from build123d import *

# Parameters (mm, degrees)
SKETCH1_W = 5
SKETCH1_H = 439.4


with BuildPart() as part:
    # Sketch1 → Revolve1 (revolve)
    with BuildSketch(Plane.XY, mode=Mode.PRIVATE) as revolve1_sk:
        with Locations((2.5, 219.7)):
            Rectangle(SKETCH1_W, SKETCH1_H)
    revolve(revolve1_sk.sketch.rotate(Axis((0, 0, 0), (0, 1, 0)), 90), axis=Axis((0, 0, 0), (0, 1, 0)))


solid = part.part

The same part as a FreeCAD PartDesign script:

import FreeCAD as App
import Part
import Sketcher

V = App.Vector
Q = App.Units.Quantity

doc = App.newDocument("Part")
body = doc.addObject("PartDesign::Body", "Body")

# Sketch on XY plane
sketch1 = doc.addObject("Sketcher::SketchObject", "Sketch")
body.addObject(sketch1)
sketch1.AttachmentSupport = (doc.XY_Plane, [""])
sketch1.MapMode = "FlatFace"
sketch1.addGeometry([
    Part.LineSegment(V(0, 439, 0), V(0, 0, 0)),
    Part.LineSegment(V(0, 0, 0), V(5, 0, 0)),
    Part.LineSegment(V(5, 0, 0), V(5, 439, 0)),
    Part.LineSegment(V(5, 439, 0), V(0, 439, 0)),
], False)
sketch1.addConstraint([
    Sketcher.Constraint("Coincident", 0, 2, 1, 1),
    Sketcher.Constraint("Coincident", 1, 2, 2, 1),
    Sketcher.Constraint("Coincident", 2, 2, 3, 1),
    Sketcher.Constraint("Coincident", 3, 2, 0, 1),
    Sketcher.Constraint("Vertical", 0),
    Sketcher.Constraint("Horizontal", 1),
    Sketcher.Constraint("Vertical", 2),
    Sketcher.Constraint("Horizontal", 3),
    Sketcher.Constraint("Coincident", 0, 2, -1, 1),
    Sketcher.Constraint("DistanceX", 1, 1, 1, 2, Q("5 mm")),
    Sketcher.Constraint("DistanceY", 0, 2, 0, 1, Q("439.4 mm")),
])
revolution = doc.addObject("PartDesign::Revolution", "Revolution")
body.addObject(revolution)
revolution.Profile = sketch1
revolution.ReferenceAxis = (sketch1, ["V_Axis"])
revolution.Angle = 360

doc.recompute()
